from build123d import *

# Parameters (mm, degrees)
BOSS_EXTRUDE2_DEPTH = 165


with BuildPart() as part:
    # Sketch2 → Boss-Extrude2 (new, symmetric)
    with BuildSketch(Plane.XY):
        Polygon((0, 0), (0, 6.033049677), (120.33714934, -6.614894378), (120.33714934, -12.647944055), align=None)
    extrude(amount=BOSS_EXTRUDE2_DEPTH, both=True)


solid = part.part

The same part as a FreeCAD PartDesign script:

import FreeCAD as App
import Part
import Sketcher

V = App.Vector
Q = App.Units.Quantity

doc = App.newDocument("Part")
body = doc.addObject("PartDesign::Body", "Body")

sketch1 = body.newObject("Sketcher::SketchObject", "Sketch")
sketch1.AttachmentSupport = (doc.getObject("XY_Plane"), [""])
sketch1.MapMode = "FlatFace"
sketch1.addGeometry([
    Part.LineSegment(V(0, 6, 0), V(0, 0, 0)),
    Part.LineSegment(V(0, 0, 0), V(120, -13, 0)),
    Part.LineSegment(V(120, -13, 0), V(120, -7, 0)),
    Part.LineSegment(V(120, -7, 0), V(0, 6, 0)),
], False)
sketch1.addConstraint([
    Sketcher.Constraint("Coincident", 0, 2, 1, 1),
    Sketcher.Constraint("Coincident", 1, 2, 2, 1),
    Sketcher.Constraint("Coincident", 2, 2, 3, 1),
    Sketcher.Constraint("Coincident", 3, 2, 0, 1),
    Sketcher.Constraint("Vertical", 0),
    Sketcher.Constraint("Vertical", 2),
    Sketcher.Constraint("Coincident", 0, 2, -1, 1),
    Sketcher.Constraint("Parallel", 1, 3),
    Sketcher.Constraint("Angle", 1, Q("-6 deg")),
    Sketcher.Constraint("Distance", 1, 121.0),
    Sketcher.Constraint("DistanceY", 0, 2, 0, 1, 6.03305),
])
pad1 = body.newObject("PartDesign::Pad", "Pad")
pad1.Profile = sketch1
pad1.Length = 330
pad1.Midplane = True

doc.recompute()
